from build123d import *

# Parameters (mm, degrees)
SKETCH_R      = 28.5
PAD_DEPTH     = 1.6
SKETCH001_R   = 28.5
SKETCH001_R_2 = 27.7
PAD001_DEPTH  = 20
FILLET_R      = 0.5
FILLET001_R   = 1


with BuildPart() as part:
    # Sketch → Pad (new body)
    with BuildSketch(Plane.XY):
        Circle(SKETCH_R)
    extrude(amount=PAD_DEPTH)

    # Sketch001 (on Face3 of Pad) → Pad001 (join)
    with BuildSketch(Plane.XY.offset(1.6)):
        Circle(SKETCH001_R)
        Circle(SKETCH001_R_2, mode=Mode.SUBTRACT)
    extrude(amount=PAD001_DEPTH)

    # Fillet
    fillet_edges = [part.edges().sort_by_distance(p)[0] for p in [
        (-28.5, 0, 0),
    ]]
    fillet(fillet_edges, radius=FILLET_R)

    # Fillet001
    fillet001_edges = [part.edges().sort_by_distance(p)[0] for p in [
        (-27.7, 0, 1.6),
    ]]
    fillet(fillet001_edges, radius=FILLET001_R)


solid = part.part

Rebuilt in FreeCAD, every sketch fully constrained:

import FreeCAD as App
import Part
import Sketcher
from FreeCAD import Vector
Q = App.Units.Quantity


def edges_at(feature, points):
    """Names of the edges that pass closest to the given points."""
    edges = feature.Shape.Edges
    near = lambda p: min(range(len(edges)), key=lambda i: edges[i].distToShape(Part.Vertex(*p))[0])
    return sorted({f"Edge{near(p) + 1}" for p in points})

doc = App.newDocument("Part")
body = doc.addObject("PartDesign::Body", "Body")

# Sketch on XY plane
sketch1 = body.newObject("Sketcher::SketchObject", "Sketch")
sketch1.AttachmentSupport = (doc.getObject("XY_Plane"), [""])
sketch1.MapMode = "FlatFace"
sketch1.addGeometry(Part.Circle(Vector(0, 0, 0), Vector(0, 0, 1), 28.5), False)
sketch1.addConstraint([
    Sketcher.Constraint("Coincident", 0, 3, -1, 1),
    Sketcher.Constraint("Diameter", 0, Q("57 mm")),
])
pad1 = body.newObject("PartDesign::Pad", "Pad")
pad1.Profile = sketch1
pad1.Length = 1.6

# Sketch on XY plane
sketch2 = body.newObject("Sketcher::SketchObject", "Sketch001")
sketch2.AttachmentSupport = (doc.getObject("XY_Plane"), [""])
sketch2.MapMode = "FlatFace"
sketch2.AttachmentOffset = App.Placement(Vector(0, 0, 1.6), App.Rotation())
sketch2.addGeometry([
    Part.Circle(Vector(0, 0, 0), Vector(0, 0, 1), 28.5),
    Part.Circle(Vector(0, 0, 0), Vector(0, 0, 1), 27.7),
], False)
sketch2.addConstraint([
    Sketcher.Constraint("Coincident", 0, 3, -1, 1),
    Sketcher.Constraint("Coincident", 1, 3, -1, 1),
    Sketcher.Constraint("Diameter", 0, Q("57 mm")),
    Sketcher.Constraint("Diameter", 1, Q("55.4 mm")),
])
pad2 = body.newObject("PartDesign::Pad", "Pad001")
pad2.Profile = sketch2
pad2.Length = 20
doc.recompute()

fillet = body.newObject("PartDesign::Fillet", "Fillet")
fillet.Base = (pad2, edges_at(pad2, [(-28.5, 0, 0)]))
fillet.Radius = 0.5
doc.recompute()

fillet2 = body.newObject("PartDesign::Fillet", "Fillet001")
fillet2.Base = (fillet, edges_at(fillet, [(-27.7, 0, 1.6)]))
fillet2.Radius = 1

doc.recompute()
